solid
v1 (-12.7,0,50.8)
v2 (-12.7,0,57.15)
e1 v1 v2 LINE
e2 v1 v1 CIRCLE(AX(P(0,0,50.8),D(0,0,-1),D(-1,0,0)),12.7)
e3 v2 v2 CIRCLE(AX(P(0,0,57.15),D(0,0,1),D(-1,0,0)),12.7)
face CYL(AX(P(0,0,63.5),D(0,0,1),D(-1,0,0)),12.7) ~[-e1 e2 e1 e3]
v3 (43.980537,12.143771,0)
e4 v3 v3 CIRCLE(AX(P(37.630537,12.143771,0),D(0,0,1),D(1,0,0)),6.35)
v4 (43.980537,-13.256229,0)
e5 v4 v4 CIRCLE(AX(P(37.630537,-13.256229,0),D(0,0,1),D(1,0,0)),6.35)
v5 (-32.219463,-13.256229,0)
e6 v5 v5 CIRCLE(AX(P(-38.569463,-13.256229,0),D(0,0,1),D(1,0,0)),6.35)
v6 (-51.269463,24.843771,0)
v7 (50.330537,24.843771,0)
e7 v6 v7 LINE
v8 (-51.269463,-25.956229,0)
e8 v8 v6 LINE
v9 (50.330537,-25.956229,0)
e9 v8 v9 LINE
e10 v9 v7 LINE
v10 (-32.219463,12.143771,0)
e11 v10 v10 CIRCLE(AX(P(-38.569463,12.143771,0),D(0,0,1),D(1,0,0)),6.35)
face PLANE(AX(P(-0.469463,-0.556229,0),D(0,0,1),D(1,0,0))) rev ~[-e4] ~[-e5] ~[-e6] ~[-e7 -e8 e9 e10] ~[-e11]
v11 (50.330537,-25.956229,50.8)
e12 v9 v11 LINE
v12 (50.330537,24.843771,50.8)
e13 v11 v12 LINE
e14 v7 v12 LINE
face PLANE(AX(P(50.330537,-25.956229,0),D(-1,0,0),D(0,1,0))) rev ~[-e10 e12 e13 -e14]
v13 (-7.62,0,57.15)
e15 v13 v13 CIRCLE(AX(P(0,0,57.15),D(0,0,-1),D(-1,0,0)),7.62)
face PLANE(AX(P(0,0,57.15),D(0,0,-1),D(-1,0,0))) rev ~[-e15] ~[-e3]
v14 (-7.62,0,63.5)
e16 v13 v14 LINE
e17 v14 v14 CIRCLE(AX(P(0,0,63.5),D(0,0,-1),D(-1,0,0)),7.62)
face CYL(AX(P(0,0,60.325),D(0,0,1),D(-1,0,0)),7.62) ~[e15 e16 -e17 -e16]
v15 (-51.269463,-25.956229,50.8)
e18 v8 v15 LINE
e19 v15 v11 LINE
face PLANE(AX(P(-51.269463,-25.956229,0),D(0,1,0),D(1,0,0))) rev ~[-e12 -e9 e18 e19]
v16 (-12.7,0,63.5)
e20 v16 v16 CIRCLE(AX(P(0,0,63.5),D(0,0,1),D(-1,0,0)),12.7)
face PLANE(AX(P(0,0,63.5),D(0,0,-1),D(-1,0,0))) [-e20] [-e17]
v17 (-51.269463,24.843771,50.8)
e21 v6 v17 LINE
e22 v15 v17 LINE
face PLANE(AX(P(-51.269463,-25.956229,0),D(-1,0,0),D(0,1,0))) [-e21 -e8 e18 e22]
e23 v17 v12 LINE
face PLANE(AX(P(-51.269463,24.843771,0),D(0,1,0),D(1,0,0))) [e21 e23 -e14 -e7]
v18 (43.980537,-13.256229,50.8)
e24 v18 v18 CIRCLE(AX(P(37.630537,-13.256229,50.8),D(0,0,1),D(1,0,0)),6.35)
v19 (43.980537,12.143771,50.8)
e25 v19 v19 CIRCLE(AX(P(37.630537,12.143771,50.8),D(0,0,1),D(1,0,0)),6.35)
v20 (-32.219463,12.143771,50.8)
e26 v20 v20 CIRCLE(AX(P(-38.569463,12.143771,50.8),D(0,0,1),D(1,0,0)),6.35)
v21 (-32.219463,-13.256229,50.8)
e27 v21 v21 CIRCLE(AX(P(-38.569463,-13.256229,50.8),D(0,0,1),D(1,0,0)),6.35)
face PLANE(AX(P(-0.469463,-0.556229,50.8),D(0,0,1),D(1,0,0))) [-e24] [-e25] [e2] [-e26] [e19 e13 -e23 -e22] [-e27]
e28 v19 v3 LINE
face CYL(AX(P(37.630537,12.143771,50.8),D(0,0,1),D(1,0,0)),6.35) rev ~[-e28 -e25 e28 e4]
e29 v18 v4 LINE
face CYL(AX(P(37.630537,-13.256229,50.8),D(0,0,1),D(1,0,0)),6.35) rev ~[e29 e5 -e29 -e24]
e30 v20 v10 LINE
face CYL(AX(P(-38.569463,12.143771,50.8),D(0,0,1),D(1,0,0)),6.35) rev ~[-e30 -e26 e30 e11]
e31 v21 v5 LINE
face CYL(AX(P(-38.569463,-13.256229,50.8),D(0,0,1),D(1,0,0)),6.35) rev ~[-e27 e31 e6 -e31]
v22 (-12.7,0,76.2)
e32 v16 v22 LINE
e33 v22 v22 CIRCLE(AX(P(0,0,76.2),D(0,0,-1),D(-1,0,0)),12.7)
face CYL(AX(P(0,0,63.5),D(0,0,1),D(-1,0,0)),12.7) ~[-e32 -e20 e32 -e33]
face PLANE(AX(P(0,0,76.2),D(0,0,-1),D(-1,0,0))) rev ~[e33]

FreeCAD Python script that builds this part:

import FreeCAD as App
import Part
import Sketcher

V = App.Vector
Q = App.Units.Quantity


def add_polygon(sketch, points):
    """Adds a closed chain of lines whose ends are joined by coincident constraints."""
    first, n = sketch.GeometryCount, len(points)
    for a, b in zip(points, points[1:] + points[:1]):
        sketch.addGeometry(Part.LineSegment(App.Vector(*a, 0), App.Vector(*b, 0)), False)
    for i in range(n):
        sketch.addConstraint(Sketcher.Constraint("Coincident", first + i, 2, first + (i + 1) % n, 1))

doc = App.newDocument("Part")
params = doc.addObject("Spreadsheet::Sheet", "Params")
for row, (alias, value) in enumerate([
    ("sketch1_width", "4 in"),
    ("sketch1_height", "2 in"),
    ("pad1_length", "2 in"),
    ("sketch2_diameter", "0.5 in"),
    ("sketch3_height", "1 in"),
    ("sketch3_width", "0.5 in"),
    ("revolution_angle", "360 deg"),
    ("sketch4_height", "0.25 in"),
    ("groove_angle", "360 deg"),
], start=1):
    params.set(f"A{row}", alias)
    params.set(f"B{row}", "=" + value)
    params.setAlias(f"B{row}", alias)

body = doc.addObject("PartDesign::Body", "Body")

# Sketch on XY plane
sketch1 = body.newObject("Sketcher::SketchObject", "Sketch")
sketch1.AttachmentSupport = (doc.getObject("XY_Plane"), [""])
sketch1.MapMode = "FlatFace"
add_polygon(sketch1, [(-51, 25), (-51, -26), (50, -26), (50, 25)])  # lines 0-3
sketch1.addConstraint(Sketcher.Constraint("Vertical", 0))
sketch1.addConstraint(Sketcher.Constraint("Horizontal", 1))
sketch1.addConstraint(Sketcher.Constraint("Vertical", 2))
sketch1.addConstraint(Sketcher.Constraint("Horizontal", 3))
sketch1.addConstraint(Sketcher.Constraint("DistanceX", 1, 1, 1, 2, Q("4 in")))
sketch1.addConstraint(Sketcher.Constraint("DistanceY", 0, 2, 0, 1, Q("2 in")))
sketch1.addConstraint(Sketcher.Constraint("DistanceY", 0, 2, -1, 1, Q("25.956229 mm")))
sketch1.addConstraint(Sketcher.Constraint("DistanceX", 0, 2, -1, 1, Q("51.269463 mm")))
sketch1.setExpression("Constraints[8]", "Params.sketch1_width")
sketch1.setExpression("Constraints[9]", "Params.sketch1_height")
pad1 = body.newObject("PartDesign::Pad", "Pad")
pad1.Profile = sketch1
pad1.setExpression("Length", "Params.pad1_length")

# Sketch on XY plane
sketch2 = body.newObject("Sketcher::SketchObject", "Sketch001")
sketch2.AttachmentSupport = (doc.getObject("XY_Plane"), [""])
sketch2.MapMode = "FlatFace"
sketch2.AttachmentOffset = App.Placement(V(0, 0, 2 * 25.4), App.Rotation())
sketch2.addGeometry(Part.Circle(V(-39, 12, 0), V(0, 0, 1), 6), False)
sketch2.addGeometry(Part.Circle(V(38, 12, 0), V(0, 0, 1), 6), False)
sketch2.addGeometry(Part.Circle(V(38, -13, 0), V(0, 0, 1), 6), False)
sketch2.addGeometry(Part.Circle(V(-39, -13, 0), V(0, 0, 1), 6), False)
sketch2.addConstraint(Sketcher.Constraint("Equal", 0, 1))
sketch2.addConstraint(Sketcher.Constraint("Equal", 1, 2))
sketch2.addConstraint(Sketcher.Constraint("Equal", 2, 3))
sketch2.addConstraint(Sketcher.Constraint("Horizontal", 0, 3, 1, 3))
sketch2.addConstraint(Sketcher.Constraint("Horizontal", 2, 3, 3, 3))
sketch2.addConstraint(Sketcher.Constraint("Vertical", 1, 3, 2, 3))
sketch2.addConstraint(Sketcher.Constraint("Vertical", 0, 3, 3, 3))
sketch2.addConstraint(Sketcher.Constraint("Diameter", 0, Q("0.5 in")))
sketch2.addConstraint(Sketcher.Constraint("DistanceX", 0, 3, 1, 3, Q("3 in")))
sketch2.addConstraint(Sketcher.Constraint("DistanceY", 2, 3, 1, 3, Q("1 in")))
sketch2.addConstraint(Sketcher.Constraint("DistanceY", -1, 1, 0, 3, Q("12.143771 mm")))
sketch2.addConstraint(Sketcher.Constraint("DistanceX", 0, 3, -1, 1, Q("38.569463 mm")))
sketch2.setExpression("Constraints[7]", "Params.sketch2_diameter")
pocket1 = body.newObject("PartDesign::Pocket", "Pocket")
pocket1.Profile = sketch2
pocket1.Type = "ThroughAll"

# Sketch on XZ plane
sketch3 = body.newObject("Sketcher::SketchObject", "Sketch002")
sketch3.AttachmentSupport = (doc.getObject("XZ_Plane"), [""])
sketch3.MapMode = "FlatFace"
add_polygon(sketch3, [(-13, 76), (-13, 51), (0, 51), (0, 76)])  # lines 0-3
sketch3.addConstraint(Sketcher.Constraint("Vertical", 0))
sketch3.addConstraint(Sketcher.Constraint("Horizontal", 1))
sketch3.addConstraint(Sketcher.Constraint("Vertical", 2))
sketch3.addConstraint(Sketcher.Constraint("Horizontal", 3))
sketch3.addConstraint(Sketcher.Constraint("PointOnObject", 1, 2, -2))
sketch3.addConstraint(Sketcher.Constraint("DistanceY", 0, 2, 0, 1, Q("1 in")))
sketch3.addConstraint(Sketcher.Constraint("DistanceX", 1, 1, 1, 2, Q("0.5 in")))
sketch3.addConstraint(Sketcher.Constraint("DistanceY", -1, 1, 0, 2, Q("2 in")))
sketch3.setExpression("Constraints[9]", "Params.sketch3_height")
sketch3.setExpression("Constraints[10]", "Params.sketch3_width")
revolution = body.newObject("PartDesign::Revolution", "Revolution")
revolution.Profile = sketch3
revolution.ReferenceAxis = (sketch3, ["V_Axis"])
revolution.setExpression("Angle", "Params.revolution_angle")

# Sketch on XZ plane
sketch4 = body.newObject("Sketcher::SketchObject", "Sketch003")
sketch4.AttachmentSupport = (doc.getObject("XZ_Plane"), [""])
sketch4.MapMode = "FlatFace"
add_polygon(sketch4, [(-28, 64), (-28, 57), (-8, 57), (-8, 64)])  # lines 0-3
sketch4.addConstraint(Sketcher.Constraint("Vertical", 0))
sketch4.addConstraint(Sketcher.Constraint("Horizontal", 1))
sketch4.addConstraint(Sketcher.Constraint("Vertical", 2))
sketch4.addConstraint(Sketcher.Constraint("Horizontal", 3))
sketch4.addConstraint(Sketcher.Constraint("DistanceY", 0, 2, 0, 1, Q("0.25 in")))
sketch4.addConstraint(Sketcher.Constraint("DistanceX", 1, 2, -1, 1, Q("0.3 in")))
sketch4.addConstraint(Sketcher.Constraint("DistanceY", -1, 1, 2, 2, Q("2.5 in")))
sketch4.addConstraint(Sketcher.Constraint("DistanceX", 1, 1, 1, 2, Q("19.9219 mm")))
sketch4.setExpression("Constraints[8]", "Params.sketch4_height")
groove = body.newObject("PartDesign::Groove", "Groove")
groove.Profile = sketch4
groove.ReferenceAxis = (sketch4, ["V_Axis"])
groove.setExpression("Angle", "Params.groove_angle")

doc.recompute()
